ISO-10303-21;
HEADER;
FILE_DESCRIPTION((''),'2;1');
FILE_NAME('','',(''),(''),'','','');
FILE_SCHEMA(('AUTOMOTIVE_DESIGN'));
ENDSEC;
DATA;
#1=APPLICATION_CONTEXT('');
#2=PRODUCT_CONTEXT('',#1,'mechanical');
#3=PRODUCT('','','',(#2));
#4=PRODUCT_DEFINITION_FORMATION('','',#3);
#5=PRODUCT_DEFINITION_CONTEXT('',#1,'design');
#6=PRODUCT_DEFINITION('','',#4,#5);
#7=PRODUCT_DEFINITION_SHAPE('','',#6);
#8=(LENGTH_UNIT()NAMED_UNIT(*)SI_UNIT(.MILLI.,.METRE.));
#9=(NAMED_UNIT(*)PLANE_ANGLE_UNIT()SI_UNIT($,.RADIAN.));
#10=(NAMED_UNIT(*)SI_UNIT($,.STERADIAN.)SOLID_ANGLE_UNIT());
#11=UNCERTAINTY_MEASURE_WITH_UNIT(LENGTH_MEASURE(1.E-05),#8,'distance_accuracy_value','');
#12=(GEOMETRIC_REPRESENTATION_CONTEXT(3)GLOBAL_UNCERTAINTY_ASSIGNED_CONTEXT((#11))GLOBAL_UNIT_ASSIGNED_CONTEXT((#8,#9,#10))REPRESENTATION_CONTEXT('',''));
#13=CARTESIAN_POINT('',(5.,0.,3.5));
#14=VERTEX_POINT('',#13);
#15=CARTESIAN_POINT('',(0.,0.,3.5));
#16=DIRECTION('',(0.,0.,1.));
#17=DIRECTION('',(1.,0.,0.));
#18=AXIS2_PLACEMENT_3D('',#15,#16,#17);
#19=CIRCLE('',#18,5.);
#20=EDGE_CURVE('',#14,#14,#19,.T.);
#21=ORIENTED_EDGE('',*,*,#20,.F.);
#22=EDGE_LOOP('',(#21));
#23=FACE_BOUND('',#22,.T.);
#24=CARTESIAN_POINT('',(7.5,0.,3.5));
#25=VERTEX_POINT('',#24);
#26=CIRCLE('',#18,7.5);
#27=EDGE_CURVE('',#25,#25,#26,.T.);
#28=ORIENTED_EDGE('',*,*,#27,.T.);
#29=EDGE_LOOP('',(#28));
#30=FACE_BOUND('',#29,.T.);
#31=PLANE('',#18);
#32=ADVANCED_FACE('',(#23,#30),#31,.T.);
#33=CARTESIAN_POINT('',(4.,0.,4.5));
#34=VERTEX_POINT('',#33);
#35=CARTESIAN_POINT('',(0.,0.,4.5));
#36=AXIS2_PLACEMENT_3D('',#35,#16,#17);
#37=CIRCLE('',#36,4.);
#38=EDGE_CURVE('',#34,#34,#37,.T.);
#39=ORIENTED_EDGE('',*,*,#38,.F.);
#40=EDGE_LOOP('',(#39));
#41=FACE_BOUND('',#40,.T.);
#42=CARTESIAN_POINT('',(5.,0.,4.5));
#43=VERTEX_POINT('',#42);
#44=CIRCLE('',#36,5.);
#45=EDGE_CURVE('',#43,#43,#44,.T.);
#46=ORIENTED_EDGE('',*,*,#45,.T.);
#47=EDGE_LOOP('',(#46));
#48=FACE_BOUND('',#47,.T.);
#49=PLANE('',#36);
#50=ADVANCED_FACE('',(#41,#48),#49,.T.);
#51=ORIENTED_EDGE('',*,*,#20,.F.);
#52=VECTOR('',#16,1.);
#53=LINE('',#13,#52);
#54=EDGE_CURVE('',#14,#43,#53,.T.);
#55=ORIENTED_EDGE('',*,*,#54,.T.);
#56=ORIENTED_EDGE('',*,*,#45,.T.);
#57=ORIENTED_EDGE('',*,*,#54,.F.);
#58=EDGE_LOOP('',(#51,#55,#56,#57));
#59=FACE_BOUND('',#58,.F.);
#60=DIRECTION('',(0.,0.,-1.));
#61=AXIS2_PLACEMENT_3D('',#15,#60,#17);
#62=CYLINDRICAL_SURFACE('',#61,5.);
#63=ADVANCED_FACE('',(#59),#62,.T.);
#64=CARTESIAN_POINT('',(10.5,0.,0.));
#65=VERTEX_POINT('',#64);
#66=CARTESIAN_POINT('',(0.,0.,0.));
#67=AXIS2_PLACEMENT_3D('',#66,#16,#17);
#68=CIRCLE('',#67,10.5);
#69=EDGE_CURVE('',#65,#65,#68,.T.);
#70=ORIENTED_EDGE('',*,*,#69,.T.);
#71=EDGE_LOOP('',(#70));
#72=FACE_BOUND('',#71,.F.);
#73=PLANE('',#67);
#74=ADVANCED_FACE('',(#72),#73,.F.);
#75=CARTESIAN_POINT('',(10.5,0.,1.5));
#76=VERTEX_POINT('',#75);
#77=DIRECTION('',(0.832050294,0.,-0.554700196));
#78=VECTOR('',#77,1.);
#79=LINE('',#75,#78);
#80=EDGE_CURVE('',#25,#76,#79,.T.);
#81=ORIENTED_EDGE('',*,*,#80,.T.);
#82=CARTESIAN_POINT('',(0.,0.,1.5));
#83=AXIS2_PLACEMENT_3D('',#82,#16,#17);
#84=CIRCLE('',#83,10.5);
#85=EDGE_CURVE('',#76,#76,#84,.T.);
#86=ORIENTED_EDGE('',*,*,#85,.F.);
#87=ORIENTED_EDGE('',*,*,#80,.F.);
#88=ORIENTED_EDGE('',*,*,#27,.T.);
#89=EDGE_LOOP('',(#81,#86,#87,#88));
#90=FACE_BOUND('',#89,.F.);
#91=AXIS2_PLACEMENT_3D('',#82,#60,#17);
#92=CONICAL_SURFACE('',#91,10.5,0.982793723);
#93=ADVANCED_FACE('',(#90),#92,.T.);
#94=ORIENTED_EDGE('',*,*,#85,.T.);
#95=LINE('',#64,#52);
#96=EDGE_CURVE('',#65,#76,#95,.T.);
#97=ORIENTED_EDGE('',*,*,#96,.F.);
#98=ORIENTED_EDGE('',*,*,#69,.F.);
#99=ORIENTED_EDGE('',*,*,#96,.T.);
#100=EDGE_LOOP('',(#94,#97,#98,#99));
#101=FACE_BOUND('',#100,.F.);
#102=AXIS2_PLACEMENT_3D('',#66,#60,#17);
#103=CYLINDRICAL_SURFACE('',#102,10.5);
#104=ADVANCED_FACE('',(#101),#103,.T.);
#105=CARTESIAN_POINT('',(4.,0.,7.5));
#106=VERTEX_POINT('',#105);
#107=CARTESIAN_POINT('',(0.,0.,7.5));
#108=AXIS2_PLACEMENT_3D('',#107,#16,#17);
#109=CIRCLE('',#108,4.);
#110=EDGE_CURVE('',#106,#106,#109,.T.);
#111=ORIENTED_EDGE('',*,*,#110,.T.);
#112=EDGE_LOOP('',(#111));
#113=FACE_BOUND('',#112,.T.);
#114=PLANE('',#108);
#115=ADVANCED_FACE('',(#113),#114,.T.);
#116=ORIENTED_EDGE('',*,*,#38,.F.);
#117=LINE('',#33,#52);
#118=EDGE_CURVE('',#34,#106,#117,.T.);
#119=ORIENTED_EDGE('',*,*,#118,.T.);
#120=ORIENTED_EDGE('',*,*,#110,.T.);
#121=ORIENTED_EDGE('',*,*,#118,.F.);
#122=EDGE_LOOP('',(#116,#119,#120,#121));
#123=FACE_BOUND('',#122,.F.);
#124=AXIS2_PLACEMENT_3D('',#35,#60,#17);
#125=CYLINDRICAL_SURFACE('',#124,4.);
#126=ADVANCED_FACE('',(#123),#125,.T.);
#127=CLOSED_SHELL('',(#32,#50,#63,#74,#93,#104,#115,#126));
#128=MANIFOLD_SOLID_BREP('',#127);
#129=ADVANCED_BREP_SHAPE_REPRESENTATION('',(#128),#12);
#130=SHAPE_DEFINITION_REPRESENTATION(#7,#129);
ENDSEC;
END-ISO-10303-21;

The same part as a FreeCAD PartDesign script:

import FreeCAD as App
import Part
import Sketcher
from FreeCAD import Vector


def edges_at(feature, points):
    """Names of the edges that pass closest to the given points."""
    edges = feature.Shape.Edges
    near = lambda p: min(range(len(edges)), key=lambda i: edges[i].distToShape(Part.Vertex(*p))[0])
    return sorted({f"Edge{near(p) + 1}" for p in points})

doc = App.newDocument("Part")
body = doc.addObject("PartDesign::Body", "Body")

sketch1 = body.newObject("Sketcher::SketchObject", "Sketch")
sketch1.AttachmentSupport = (doc.getObject("XY_Plane"), [""])
sketch1.MapMode = "FlatFace"
sketch1.addGeometry(Part.Circle(Vector(0, 0, 0), Vector(0, 0, 1), 10), False)
sketch1.addConstraint([
    Sketcher.Constraint("Coincident", 0, 3, -1, 1),
    Sketcher.Constraint("Diameter", 0, 21.0),
])
pad1 = body.newObject("PartDesign::Pad", "Pad")
pad1.Profile = sketch1
pad1.Length = 3.5

sketch2 = body.newObject("Sketcher::SketchObject", "Sketch001")
sketch2.AttachmentSupport = (doc.getObject("XY_Plane"), [""])
sketch2.MapMode = "FlatFace"
sketch2.AttachmentOffset = App.Placement(Vector(0, 0, 3.5), App.Rotation())
sketch2.addGeometry(Part.Circle(Vector(0, 0, 0), Vector(0, 0, 1), 5), False)
sketch2.addConstraint([
    Sketcher.Constraint("Coincident", 0, 3, -1, 1),
    Sketcher.Constraint("Diameter", 0, 10.0),
])
pad2 = body.newObject("PartDesign::Pad", "Pad001")
pad2.Profile = sketch2
pad2.Length = 1

sketch3 = body.newObject("Sketcher::SketchObject", "Sketch002")
sketch3.AttachmentSupport = (doc.getObject("XY_Plane"), [""])
sketch3.MapMode = "FlatFace"
sketch3.AttachmentOffset = App.Placement(Vector(0, 0, 4.5), App.Rotation())
sketch3.addGeometry(Part.Circle(Vector(0, 0, 0), Vector(0, 0, 1), 4), False)
sketch3.addConstraint([
    Sketcher.Constraint("Coincident", 0, 3, -1, 1),
    Sketcher.Constraint("Diameter", 0, 8.0),
])
pad3 = body.newObject("PartDesign::Pad", "Pad002")
pad3.Profile = sketch3
pad3.Length = 3
doc.recompute()

chamfer = body.newObject("PartDesign::Chamfer", "Chamfer")
chamfer.Base = (pad3, edges_at(pad3, [(-10.5, 0, 3.5)]))
chamfer.ChamferType = "Two distances"
chamfer.Size = 3
chamfer.Size2 = 2
chamfer.FlipDirection = True

doc.recompute()
